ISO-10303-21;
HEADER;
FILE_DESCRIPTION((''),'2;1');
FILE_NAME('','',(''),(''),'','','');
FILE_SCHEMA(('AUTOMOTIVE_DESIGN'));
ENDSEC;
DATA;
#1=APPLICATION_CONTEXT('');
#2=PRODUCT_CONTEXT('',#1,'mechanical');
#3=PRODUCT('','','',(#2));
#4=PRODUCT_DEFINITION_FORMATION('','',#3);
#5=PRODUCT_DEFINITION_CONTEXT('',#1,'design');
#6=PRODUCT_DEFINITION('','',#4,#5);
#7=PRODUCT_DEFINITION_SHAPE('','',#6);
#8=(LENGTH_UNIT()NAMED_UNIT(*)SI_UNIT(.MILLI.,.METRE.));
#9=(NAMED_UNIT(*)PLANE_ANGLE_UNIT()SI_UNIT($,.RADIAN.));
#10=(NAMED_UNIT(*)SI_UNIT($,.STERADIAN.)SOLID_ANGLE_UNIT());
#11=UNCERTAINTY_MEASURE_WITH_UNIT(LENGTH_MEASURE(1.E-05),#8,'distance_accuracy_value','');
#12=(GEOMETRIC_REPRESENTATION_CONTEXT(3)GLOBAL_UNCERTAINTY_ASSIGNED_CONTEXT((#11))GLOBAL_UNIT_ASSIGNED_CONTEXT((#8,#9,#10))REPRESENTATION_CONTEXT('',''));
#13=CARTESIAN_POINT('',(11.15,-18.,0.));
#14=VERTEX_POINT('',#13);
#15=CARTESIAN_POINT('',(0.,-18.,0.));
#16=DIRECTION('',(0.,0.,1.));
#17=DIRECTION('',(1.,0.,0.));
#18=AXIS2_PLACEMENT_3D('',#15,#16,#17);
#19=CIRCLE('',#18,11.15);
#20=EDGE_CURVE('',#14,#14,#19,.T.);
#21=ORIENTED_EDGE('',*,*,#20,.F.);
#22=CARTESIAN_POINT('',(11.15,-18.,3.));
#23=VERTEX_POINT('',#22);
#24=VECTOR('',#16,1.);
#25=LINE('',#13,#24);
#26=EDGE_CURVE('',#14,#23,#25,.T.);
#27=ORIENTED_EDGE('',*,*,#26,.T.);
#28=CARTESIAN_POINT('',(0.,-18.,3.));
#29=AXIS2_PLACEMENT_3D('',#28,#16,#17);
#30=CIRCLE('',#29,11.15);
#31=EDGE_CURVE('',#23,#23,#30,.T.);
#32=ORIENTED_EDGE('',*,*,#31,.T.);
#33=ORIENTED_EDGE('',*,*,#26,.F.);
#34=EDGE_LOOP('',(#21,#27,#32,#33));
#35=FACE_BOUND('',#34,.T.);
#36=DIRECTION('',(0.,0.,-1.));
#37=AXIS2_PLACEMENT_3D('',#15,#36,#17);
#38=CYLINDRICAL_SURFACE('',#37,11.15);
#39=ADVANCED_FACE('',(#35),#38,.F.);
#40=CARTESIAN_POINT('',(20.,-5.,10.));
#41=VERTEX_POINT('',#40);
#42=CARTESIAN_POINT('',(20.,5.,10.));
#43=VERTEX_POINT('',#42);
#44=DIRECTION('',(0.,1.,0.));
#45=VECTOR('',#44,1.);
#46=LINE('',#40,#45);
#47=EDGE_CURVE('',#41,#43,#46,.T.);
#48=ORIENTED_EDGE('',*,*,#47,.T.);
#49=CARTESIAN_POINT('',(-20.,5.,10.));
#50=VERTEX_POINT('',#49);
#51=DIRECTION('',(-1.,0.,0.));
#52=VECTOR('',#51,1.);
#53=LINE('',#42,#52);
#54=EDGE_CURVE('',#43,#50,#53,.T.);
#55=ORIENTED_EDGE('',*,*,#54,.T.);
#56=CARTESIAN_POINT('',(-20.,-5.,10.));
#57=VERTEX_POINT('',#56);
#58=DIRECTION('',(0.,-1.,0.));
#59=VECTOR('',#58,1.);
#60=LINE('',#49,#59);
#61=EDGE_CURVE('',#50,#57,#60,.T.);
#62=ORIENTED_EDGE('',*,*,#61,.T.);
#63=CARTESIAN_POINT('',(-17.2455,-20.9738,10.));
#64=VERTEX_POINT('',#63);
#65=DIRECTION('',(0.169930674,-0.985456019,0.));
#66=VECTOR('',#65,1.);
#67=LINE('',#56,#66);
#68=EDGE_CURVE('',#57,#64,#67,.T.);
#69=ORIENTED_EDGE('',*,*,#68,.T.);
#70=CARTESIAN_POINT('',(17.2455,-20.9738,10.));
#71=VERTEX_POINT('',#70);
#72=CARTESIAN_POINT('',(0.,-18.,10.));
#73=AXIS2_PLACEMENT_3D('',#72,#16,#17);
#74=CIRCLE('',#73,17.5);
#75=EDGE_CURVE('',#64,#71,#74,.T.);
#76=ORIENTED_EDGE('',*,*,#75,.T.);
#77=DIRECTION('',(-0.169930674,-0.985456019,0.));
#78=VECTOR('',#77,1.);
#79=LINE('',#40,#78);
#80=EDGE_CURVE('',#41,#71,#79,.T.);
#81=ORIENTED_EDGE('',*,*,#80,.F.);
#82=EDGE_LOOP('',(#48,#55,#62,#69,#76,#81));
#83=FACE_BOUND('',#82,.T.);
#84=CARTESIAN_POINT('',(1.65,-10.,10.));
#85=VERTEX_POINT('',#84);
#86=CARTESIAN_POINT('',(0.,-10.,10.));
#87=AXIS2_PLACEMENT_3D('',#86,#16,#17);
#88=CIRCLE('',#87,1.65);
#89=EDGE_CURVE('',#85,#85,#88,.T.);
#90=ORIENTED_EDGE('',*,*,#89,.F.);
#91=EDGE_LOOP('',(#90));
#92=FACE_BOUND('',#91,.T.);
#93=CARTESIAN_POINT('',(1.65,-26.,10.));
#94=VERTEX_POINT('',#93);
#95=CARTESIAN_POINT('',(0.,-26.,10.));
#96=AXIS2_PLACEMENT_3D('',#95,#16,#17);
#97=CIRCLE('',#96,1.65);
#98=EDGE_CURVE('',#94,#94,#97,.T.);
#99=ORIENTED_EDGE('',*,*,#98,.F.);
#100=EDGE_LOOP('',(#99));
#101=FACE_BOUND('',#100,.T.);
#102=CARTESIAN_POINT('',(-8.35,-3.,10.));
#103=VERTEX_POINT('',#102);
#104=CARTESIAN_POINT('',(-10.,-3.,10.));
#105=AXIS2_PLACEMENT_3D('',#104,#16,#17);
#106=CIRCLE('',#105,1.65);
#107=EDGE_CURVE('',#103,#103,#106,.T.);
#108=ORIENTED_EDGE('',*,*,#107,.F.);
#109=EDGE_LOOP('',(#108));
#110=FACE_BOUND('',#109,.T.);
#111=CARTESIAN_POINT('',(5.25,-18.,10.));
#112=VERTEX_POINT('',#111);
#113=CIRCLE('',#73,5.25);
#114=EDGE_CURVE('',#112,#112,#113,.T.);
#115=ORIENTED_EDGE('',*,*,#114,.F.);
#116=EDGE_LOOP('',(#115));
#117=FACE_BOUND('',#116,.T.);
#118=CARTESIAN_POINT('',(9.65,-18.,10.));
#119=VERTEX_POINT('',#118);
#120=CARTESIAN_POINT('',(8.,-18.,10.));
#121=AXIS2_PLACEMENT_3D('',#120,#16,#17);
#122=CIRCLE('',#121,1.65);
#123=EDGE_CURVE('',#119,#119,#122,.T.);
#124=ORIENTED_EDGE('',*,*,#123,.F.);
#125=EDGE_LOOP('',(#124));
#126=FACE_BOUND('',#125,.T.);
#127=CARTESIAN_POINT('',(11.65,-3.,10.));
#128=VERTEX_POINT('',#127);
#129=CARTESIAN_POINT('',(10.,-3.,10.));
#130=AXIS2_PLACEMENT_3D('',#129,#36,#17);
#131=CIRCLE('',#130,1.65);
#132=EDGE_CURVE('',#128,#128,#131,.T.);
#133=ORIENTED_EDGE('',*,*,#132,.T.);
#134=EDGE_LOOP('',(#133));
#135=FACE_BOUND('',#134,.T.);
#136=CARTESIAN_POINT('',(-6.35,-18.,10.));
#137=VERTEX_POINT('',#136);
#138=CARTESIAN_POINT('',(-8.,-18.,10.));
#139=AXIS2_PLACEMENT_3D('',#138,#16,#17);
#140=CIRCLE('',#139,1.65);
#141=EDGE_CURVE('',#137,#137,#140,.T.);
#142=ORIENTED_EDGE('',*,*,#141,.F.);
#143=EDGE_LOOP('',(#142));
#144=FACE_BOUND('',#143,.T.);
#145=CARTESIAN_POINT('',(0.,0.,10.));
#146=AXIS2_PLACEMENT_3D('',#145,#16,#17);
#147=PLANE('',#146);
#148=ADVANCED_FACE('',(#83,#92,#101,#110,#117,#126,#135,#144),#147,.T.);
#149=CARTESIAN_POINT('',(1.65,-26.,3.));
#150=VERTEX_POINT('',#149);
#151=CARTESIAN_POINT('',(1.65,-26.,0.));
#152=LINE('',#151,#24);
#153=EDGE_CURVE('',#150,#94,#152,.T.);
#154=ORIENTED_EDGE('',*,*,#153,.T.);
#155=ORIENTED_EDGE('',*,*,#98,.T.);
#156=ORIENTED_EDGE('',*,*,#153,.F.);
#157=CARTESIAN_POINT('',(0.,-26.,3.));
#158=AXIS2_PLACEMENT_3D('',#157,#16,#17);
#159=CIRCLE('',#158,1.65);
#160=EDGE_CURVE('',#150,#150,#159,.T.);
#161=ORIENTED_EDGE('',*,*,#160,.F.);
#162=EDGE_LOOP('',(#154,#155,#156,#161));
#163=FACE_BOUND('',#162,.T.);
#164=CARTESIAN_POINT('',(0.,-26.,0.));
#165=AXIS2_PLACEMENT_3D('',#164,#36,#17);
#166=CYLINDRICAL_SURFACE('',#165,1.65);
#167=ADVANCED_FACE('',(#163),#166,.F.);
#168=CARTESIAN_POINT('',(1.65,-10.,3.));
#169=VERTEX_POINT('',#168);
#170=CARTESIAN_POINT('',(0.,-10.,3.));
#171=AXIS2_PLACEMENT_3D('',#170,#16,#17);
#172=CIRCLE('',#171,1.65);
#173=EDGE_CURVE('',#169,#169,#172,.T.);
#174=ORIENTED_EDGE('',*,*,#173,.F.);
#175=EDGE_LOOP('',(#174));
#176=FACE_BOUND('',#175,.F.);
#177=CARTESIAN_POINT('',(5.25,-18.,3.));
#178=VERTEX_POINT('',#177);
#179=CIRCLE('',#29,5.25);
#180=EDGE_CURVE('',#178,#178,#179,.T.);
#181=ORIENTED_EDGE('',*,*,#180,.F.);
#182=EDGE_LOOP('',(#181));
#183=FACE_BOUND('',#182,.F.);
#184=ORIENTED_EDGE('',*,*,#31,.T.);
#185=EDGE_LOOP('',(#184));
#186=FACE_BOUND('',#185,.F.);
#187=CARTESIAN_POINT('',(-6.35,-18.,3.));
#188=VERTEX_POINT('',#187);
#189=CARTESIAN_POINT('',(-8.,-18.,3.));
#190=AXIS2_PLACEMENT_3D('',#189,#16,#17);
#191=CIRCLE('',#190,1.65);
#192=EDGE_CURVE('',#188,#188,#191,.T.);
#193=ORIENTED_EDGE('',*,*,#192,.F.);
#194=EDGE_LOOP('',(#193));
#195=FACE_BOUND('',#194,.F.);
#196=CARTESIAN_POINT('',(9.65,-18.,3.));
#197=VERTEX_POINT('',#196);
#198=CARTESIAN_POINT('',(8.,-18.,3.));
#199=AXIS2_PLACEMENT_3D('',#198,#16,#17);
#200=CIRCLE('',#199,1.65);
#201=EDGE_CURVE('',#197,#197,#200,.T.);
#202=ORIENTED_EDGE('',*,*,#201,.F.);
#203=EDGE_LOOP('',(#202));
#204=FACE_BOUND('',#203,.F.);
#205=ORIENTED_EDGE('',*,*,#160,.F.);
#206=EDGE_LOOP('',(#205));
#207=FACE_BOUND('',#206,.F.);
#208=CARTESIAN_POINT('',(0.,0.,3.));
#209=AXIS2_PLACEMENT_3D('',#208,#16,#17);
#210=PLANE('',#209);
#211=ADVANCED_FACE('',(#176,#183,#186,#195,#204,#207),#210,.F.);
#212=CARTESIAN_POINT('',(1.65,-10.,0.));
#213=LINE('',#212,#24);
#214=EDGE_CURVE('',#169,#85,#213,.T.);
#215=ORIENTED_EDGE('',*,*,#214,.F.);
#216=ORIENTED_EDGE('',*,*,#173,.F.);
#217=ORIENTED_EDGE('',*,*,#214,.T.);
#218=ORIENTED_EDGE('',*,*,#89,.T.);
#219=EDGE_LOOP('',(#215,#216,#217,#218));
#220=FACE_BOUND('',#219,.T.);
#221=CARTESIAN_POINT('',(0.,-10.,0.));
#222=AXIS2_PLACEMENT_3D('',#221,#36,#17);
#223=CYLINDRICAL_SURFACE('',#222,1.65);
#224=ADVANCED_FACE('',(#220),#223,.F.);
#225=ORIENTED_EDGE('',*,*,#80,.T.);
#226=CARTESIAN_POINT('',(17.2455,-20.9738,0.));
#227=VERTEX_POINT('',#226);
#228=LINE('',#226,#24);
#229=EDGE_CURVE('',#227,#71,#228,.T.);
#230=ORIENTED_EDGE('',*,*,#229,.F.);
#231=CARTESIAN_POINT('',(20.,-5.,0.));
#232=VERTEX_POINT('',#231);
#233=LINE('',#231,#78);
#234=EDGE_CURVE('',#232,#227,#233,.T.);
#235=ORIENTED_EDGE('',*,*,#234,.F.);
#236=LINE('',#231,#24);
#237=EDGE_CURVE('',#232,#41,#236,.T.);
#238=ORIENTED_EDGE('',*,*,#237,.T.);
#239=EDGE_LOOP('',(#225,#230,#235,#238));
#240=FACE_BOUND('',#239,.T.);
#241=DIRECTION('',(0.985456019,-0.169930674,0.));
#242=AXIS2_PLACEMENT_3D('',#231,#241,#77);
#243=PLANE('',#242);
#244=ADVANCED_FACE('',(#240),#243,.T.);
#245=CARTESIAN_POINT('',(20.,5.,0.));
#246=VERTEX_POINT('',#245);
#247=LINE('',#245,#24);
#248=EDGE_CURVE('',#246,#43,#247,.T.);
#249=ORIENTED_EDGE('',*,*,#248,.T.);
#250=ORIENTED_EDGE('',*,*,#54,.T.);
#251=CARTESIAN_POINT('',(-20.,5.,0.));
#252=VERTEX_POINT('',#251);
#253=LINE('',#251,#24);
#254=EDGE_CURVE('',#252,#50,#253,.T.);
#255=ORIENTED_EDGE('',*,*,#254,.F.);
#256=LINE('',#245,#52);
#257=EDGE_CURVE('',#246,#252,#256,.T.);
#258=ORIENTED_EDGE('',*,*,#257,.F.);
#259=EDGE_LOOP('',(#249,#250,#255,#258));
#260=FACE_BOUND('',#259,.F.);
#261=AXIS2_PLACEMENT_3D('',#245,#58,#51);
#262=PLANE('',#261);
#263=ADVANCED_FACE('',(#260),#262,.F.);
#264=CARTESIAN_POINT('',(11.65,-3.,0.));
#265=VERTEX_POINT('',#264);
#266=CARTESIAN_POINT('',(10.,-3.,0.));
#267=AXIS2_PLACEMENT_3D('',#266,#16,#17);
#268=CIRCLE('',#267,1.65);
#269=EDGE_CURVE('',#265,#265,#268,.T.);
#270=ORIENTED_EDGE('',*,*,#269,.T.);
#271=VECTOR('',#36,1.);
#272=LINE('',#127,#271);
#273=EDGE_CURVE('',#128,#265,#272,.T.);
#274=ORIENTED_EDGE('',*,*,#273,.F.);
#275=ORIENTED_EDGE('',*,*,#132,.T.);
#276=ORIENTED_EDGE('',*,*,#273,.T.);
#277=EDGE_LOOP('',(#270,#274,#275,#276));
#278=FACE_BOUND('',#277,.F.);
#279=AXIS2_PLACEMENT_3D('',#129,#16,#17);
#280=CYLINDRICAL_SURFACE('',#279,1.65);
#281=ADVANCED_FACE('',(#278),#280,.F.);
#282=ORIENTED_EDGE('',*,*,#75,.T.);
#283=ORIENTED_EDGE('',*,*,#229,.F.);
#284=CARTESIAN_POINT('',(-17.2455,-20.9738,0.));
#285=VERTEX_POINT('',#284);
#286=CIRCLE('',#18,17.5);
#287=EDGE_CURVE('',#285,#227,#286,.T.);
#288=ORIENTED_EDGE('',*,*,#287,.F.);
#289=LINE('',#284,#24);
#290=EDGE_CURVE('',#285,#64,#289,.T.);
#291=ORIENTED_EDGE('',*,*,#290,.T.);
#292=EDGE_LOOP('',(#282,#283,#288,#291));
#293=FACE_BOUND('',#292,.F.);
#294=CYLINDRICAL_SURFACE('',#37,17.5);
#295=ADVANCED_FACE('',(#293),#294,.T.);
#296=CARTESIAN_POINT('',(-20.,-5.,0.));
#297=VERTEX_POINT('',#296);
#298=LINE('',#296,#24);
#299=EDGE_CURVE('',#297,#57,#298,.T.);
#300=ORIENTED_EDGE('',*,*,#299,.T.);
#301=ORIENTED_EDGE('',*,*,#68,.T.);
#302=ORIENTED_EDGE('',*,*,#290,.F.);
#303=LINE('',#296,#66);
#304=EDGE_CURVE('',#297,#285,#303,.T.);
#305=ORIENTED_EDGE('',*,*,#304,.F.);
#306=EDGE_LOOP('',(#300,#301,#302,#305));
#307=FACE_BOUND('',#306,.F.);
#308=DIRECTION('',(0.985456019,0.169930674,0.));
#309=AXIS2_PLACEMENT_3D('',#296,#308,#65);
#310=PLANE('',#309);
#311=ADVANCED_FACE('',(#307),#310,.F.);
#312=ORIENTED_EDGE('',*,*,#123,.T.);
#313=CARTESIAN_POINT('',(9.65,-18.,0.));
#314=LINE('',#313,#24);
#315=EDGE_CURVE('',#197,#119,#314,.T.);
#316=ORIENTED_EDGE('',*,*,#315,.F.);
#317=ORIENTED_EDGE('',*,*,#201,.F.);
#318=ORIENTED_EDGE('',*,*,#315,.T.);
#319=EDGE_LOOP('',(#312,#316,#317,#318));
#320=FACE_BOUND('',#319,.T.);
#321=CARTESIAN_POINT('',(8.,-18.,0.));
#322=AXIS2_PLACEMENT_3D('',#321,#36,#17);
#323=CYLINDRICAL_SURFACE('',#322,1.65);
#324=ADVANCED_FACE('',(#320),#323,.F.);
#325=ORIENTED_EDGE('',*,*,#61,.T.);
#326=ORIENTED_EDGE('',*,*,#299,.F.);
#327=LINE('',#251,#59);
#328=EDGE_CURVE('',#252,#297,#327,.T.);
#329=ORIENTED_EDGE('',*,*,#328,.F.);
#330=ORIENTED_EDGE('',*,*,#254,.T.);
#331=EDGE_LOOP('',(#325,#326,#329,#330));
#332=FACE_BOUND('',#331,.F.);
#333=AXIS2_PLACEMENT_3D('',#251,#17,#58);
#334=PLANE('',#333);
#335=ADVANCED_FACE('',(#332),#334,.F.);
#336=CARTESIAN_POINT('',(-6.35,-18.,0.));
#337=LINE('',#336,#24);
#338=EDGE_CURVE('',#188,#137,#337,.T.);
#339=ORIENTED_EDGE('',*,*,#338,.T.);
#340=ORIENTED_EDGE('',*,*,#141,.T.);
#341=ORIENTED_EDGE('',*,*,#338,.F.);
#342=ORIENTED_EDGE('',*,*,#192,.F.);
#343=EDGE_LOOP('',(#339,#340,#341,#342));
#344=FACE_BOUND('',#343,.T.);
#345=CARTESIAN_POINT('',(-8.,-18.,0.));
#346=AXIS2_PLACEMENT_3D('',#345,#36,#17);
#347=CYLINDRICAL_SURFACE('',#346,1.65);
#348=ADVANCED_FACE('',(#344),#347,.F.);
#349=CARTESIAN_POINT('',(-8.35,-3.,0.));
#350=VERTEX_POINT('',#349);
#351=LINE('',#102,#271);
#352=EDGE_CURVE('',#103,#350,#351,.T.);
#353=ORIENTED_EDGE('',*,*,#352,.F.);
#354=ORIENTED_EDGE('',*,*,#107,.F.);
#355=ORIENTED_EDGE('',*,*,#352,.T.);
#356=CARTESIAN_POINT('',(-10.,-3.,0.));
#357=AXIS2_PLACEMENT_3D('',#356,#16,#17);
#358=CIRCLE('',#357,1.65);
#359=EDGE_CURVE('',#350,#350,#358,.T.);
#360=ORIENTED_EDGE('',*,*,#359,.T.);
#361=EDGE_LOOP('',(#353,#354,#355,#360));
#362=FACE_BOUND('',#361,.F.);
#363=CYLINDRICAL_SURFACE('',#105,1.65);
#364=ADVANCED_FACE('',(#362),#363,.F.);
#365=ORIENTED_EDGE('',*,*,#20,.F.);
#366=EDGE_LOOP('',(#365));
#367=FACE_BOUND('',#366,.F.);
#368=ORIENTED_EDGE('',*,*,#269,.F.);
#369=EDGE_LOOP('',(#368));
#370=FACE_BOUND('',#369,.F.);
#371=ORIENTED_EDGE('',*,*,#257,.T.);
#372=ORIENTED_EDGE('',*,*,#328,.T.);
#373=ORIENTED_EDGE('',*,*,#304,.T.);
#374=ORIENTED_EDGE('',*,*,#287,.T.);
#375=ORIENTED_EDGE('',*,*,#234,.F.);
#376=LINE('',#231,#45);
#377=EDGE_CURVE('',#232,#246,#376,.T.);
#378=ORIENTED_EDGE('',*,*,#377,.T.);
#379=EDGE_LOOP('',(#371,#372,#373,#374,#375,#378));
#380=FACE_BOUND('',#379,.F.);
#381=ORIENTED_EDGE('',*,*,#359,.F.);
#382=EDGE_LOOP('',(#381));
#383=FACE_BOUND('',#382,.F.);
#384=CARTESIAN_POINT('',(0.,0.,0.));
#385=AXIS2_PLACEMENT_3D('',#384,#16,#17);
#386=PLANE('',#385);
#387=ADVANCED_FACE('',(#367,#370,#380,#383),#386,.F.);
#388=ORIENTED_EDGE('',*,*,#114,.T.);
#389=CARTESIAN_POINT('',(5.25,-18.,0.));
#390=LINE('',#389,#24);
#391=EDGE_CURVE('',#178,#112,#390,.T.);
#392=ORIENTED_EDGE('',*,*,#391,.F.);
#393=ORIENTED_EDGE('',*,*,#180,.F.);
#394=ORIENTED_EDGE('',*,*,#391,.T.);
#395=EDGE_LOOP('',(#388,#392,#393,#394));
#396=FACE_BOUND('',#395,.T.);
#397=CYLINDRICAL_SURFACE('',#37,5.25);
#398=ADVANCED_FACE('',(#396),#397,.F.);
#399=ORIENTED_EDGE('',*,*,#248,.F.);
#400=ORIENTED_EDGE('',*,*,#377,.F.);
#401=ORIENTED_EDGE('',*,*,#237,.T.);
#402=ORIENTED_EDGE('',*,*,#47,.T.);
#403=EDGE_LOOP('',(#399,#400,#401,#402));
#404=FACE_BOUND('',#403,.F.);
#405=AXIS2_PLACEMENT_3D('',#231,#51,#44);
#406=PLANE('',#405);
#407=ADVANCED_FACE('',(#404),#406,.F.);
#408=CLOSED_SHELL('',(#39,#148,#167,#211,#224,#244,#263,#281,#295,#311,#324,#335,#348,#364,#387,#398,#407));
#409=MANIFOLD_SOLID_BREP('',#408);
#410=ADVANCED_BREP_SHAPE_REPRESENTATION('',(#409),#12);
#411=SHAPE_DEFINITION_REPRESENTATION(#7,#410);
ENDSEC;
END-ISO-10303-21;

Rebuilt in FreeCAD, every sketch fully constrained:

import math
import FreeCAD as App
import Part
import Sketcher
from FreeCAD import Vector
Q = App.Units.Quantity

doc = App.newDocument("Part")
params = doc.addObject("Spreadsheet::Sheet", "Params")
for row, (alias, value) in enumerate([
    ("sketch1_diameter", "3.3 mm"),
    ("sketch1_diameter2", "10.5 mm"),
    ("sketch1_radius", "17.5 mm"),
    ("sketch1_width", "40 mm"),
    ("sketch1_height", "10 mm"),
    ("pad1_length", "10 mm"),
    ("sketch2_diameter", "22.3 mm"),
    ("sketch2_diameter2", "3.3 mm"),
    ("sketch2_diameter3", "10.5 mm"),
    ("pocket1_length", "3 mm"),
    ("sketch3_diameter", "3.3 mm"),
], start=1):
    params.set(f"A{row}", alias)
    params.set(f"B{row}", "=" + value)
    params.setAlias(f"B{row}", alias)

body = doc.addObject("PartDesign::Body", "Body")

# Sketch on XY plane
sketch1 = body.newObject("Sketcher::SketchObject", "Sketch")
sketch1.AttachmentSupport = (doc.getObject("XY_Plane"), [""])
sketch1.MapMode = "FlatFace"
sketch1.addGeometry([
    Part.LineSegment(Vector(-20, 5, 0), Vector(-20, -5, 0)),  # 0
    Part.LineSegment(Vector(-20, -5, 0), Vector(-17.2, -21, 0)),  # 1
    Part.ArcOfCircle(Part.Circle(Vector(0, -18, 0), Vector(0, 0, 1), 17.5), math.radians(-170), math.radians(-10)),  # 2
    Part.LineSegment(Vector(17.2, -21, 0), Vector(20, -5, 0)),  # 3
    Part.LineSegment(Vector(20, -5, 0), Vector(20, 5, 0)),  # 4
    Part.LineSegment(Vector(20, 5, 0), Vector(-20, 5, 0)),  # 5
    Part.Circle(Vector(0, -10, 0), Vector(0, 0, 1), 1.6),  # 6
    Part.Circle(Vector(-8, -18, 0), Vector(0, 0, 1), 1.6),  # 7
    Part.Circle(Vector(0, -26, 0), Vector(0, 0, 1), 1.6),  # 8
    Part.Circle(Vector(0, -18, 0), Vector(0, 0, 1), 5.2),  # 9
    Part.Circle(Vector(8, -18, 0), Vector(0, 0, 1), 1.6),  # 10
], False)
sketch1.addConstraint([
    Sketcher.Constraint("Coincident", 0, 2, 1, 1),
    Sketcher.Constraint("Tangent", 1, 2, 2, 1),
    Sketcher.Constraint("Tangent", 2, 2, 3, 1),
    Sketcher.Constraint("Coincident", 3, 2, 4, 1),
    Sketcher.Constraint("Coincident", 4, 2, 5, 1),
    Sketcher.Constraint("Coincident", 5, 2, 0, 1),
    Sketcher.Constraint("Vertical", 0),
    Sketcher.Constraint("Vertical", 4),
    Sketcher.Constraint("Horizontal", 5),
    Sketcher.Constraint("Coincident", 9, 3, 2, 3),
    Sketcher.Constraint("Equal", 6, 7),
    Sketcher.Constraint("Equal", 7, 8),
    Sketcher.Constraint("Equal", 8, 10),
    Sketcher.Constraint("Symmetric", 0, 2, 4, 2, -1, 1),
    Sketcher.Constraint("Symmetric", 7, 3, 10, 3, -2),
    Sketcher.Constraint("Symmetric", 1, 2, 2, 2, -2),
    Sketcher.Constraint("PointOnObject", 6, 3, -2),
    Sketcher.Constraint("PointOnObject", 8, 3, -2),
    Sketcher.Constraint("Horizontal", 2, 3, 7, 3),
    Sketcher.Constraint("Diameter", 6, Q("3.3 mm")),
    Sketcher.Constraint("Diameter", 9, Q("10.5 mm")),
    Sketcher.Constraint("Radius", 2, Q("17.5 mm")),
    Sketcher.Constraint("DistanceX", 5, 2, 5, 1, Q("40 mm")),
    Sketcher.Constraint("DistanceY", 0, 2, 0, 1, Q("10 mm")),
    Sketcher.Constraint("DistanceY", 6, 3, -1, 1, Q("10 mm")),
    Sketcher.Constraint("DistanceX", 7, 3, -1, 1, Q("8 mm")),
    Sketcher.Constraint("DistanceY", 2, 3, 6, 3, Q("8 mm")),
    Sketcher.Constraint("DistanceY", 8, 3, 2, 3, Q("8 mm")),
])
sketch1.setExpression("Constraints[19]", "Params.sketch1_diameter")
sketch1.setExpression("Constraints[20]", "Params.sketch1_diameter2")
sketch1.setExpression("Constraints[21]", "Params.sketch1_radius")
sketch1.setExpression("Constraints[22]", "Params.sketch1_width")
sketch1.setExpression("Constraints[23]", "Params.sketch1_height")
pad1 = body.newObject("PartDesign::Pad", "Pad")
pad1.Profile = sketch1
pad1.setExpression("Length", "Params.pad1_length")

# Sketch on XY plane
sketch2 = body.newObject("Sketcher::SketchObject", "Sketch001")
sketch2.AttachmentSupport = (doc.getObject("XY_Plane"), [""])
sketch2.MapMode = "FlatFace"
sketch2.addGeometry([
    Part.Circle(Vector(0, -18, 0), Vector(0, 0, 1), 11.2),  # 0
    Part.Circle(Vector(-8, -18, 0), Vector(0, 0, 1), 1.6),  # 1
    Part.Circle(Vector(0, -26, 0), Vector(0, 0, 1), 1.6),  # 2
    Part.Circle(Vector(0, -18, 0), Vector(0, 0, 1), 5.2),  # 3
    Part.Circle(Vector(8, -18, 0), Vector(0, 0, 1), 1.6),  # 4
    Part.Circle(Vector(0, -10, 0), Vector(0, 0, 1), 1.6),  # 5
], False)
sketch2.addConstraint([
    Sketcher.Constraint("Coincident", 3, 3, 0, 3),
    Sketcher.Constraint("Equal", 1, 2),
    Sketcher.Constraint("Equal", 2, 4),
    Sketcher.Constraint("Equal", 4, 5),
    Sketcher.Constraint("Symmetric", 1, 3, 4, 3, -2),
    Sketcher.Constraint("PointOnObject", 0, 3, -2),
    Sketcher.Constraint("PointOnObject", 2, 3, -2),
    Sketcher.Constraint("PointOnObject", 5, 3, -2),
    Sketcher.Constraint("Horizontal", 0, 3, 1, 3),
    Sketcher.Constraint("Diameter", 0, Q("22.3 mm")),
    Sketcher.Constraint("Diameter", 1, Q("3.3 mm")),
    Sketcher.Constraint("Diameter", 3, Q("10.5 mm")),
    Sketcher.Constraint("DistanceX", 1, 3, -1, 1, Q("8 mm")),
    Sketcher.Constraint("DistanceY", 5, 3, -1, 1, Q("10 mm")),
    Sketcher.Constraint("DistanceY", 2, 3, 0, 3, Q("8 mm")),
    Sketcher.Constraint("DistanceY", 0, 3, 5, 3, Q("8 mm")),
])
sketch2.setExpression("Constraints[9]", "Params.sketch2_diameter")
sketch2.setExpression("Constraints[10]", "Params.sketch2_diameter2")
sketch2.setExpression("Constraints[11]", "Params.sketch2_diameter3")
pocket1 = body.newObject("PartDesign::Pocket", "Pocket")
pocket1.Profile = sketch2
pocket1.setExpression("Length", "Params.pocket1_length")
pocket1.Reversed = True

# Sketch on XY plane
sketch3 = body.newObject("Sketcher::SketchObject", "Sketch002")
sketch3.AttachmentSupport = (doc.getObject("XY_Plane"), [""])
sketch3.MapMode = "FlatFace"
sketch3.AttachmentOffset = App.Placement(Vector(0, 0, 10), App.Rotation())
sketch3.addGeometry([
    Part.Circle(Vector(-10, -3, 0), Vector(0, 0, 1), 1.6),
    Part.Circle(Vector(10, -3, 0), Vector(0, 0, 1), 1.6),
], False)
sketch3.addConstraint([
    Sketcher.Constraint("Equal", 0, 1),
    Sketcher.Constraint("Symmetric", 0, 3, 1, 3, -2),
    Sketcher.Constraint("Diameter", 0, Q("3.3 mm")),
    Sketcher.Constraint("DistanceX", 0, 3, 1, 3, Q("20 mm")),
    Sketcher.Constraint("DistanceY", 0, 3, -1, 1, Q("3 mm")),
])
sketch3.setExpression("Constraints[2]", "Params.sketch3_diameter")
pocket2 = body.newObject("PartDesign::Pocket", "Pocket001")
pocket2.Profile = sketch3
pocket2.Type = "ThroughAll"

doc.recompute()
